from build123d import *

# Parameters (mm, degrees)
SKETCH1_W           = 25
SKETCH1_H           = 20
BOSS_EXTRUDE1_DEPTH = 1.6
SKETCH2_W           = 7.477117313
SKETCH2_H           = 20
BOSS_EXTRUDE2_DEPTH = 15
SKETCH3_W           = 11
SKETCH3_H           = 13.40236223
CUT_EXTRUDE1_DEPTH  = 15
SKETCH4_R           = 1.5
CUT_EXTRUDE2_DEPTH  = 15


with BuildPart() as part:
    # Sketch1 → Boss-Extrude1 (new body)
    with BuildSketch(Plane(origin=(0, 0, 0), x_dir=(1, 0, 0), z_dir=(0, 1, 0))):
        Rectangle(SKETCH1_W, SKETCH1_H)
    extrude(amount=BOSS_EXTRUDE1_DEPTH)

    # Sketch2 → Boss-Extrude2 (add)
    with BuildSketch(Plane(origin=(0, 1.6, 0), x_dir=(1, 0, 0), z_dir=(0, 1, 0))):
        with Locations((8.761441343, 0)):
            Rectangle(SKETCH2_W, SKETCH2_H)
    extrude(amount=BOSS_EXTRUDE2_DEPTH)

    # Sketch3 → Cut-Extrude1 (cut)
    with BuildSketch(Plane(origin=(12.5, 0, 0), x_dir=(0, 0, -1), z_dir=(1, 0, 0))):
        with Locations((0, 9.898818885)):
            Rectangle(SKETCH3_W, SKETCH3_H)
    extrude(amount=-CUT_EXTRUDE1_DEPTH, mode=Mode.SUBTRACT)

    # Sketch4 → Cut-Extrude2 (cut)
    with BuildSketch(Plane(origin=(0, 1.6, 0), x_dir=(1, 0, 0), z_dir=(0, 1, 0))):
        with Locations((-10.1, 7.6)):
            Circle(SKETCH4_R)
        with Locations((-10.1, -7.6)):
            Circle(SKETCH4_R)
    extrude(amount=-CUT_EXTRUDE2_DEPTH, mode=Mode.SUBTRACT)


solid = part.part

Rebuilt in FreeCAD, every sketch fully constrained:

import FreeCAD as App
import Part
import Sketcher

V = App.Vector


def add_polygon(sketch, points):
    """Adds a closed chain of lines whose ends are joined by coincident constraints."""
    first, n = sketch.GeometryCount, len(points)
    for a, b in zip(points, points[1:] + points[:1]):
        sketch.addGeometry(Part.LineSegment(App.Vector(*a, 0), App.Vector(*b, 0)), False)
    for i in range(n):
        sketch.addConstraint(Sketcher.Constraint("Coincident", first + i, 2, first + (i + 1) % n, 1))

doc = App.newDocument("Part")
params = doc.addObject("Spreadsheet::Sheet", "Params")
for row, (alias, value) in enumerate([
    ("sketch1_width", "25 mm"),
    ("sketch1_height", "20 mm"),
    ("pad1_length", "1.6 mm"),
    ("sketch2_height", "20 mm"),
    ("pad2_length", "15 mm"),
    ("sketch3_height", "11 mm"),
    ("pocket1_length", "15 mm"),
    ("sketch4_diameter", "3 mm"),
    ("pocket2_length", "15 mm"),
], start=1):
    params.set(f"A{row}", alias)
    params.set(f"B{row}", "=" + value)
    params.setAlias(f"B{row}", alias)

body = doc.addObject("PartDesign::Body", "Body")

# Sketch on XZ plane
sketch1 = body.newObject("Sketcher::SketchObject", "Sketch")
sketch1.AttachmentSupport = (doc.getObject("XZ_Plane"), [""])
sketch1.MapMode = "FlatFace"
add_polygon(sketch1, [(-12, -10), (-12, 10), (12, 10), (12, -10)])  # lines 0-3
sketch1.addConstraint([
    Sketcher.Constraint("Vertical", 0),
    Sketcher.Constraint("Horizontal", 1),
    Sketcher.Constraint("Vertical", 2),
    Sketcher.Constraint("Horizontal", 3),
    Sketcher.Constraint("Symmetric", 0, 2, 2, 2, -1, 1),
    Sketcher.Constraint("DistanceX", 1, 1, 1, 2, 25.0),
    Sketcher.Constraint("DistanceY", 0, 1, 0, 2, 20.0),
])
sketch1.setExpression("Constraints[9]", "Params.sketch1_width")
sketch1.setExpression("Constraints[10]", "Params.sketch1_height")
pad1 = body.newObject("PartDesign::Pad", "Pad")
pad1.Profile = sketch1
pad1.setExpression("Length", "Params.pad1_length")
pad1.Reversed = True

# Sketch on XZ plane
sketch2 = body.newObject("Sketcher::SketchObject", "Sketch001")
sketch2.AttachmentSupport = (doc.getObject("XZ_Plane"), [""])
sketch2.MapMode = "FlatFace"
sketch2.AttachmentOffset = App.Placement(V(0, 0, -1.6), App.Rotation())
add_polygon(sketch2, [(5, -10), (5, 10), (12, 10), (12, -10)])  # lines 0-3
sketch2.addConstraint([
    Sketcher.Constraint("Vertical", 0),
    Sketcher.Constraint("Horizontal", 1),
    Sketcher.Constraint("Vertical", 2),
    Sketcher.Constraint("Horizontal", 3),
    Sketcher.Constraint("DistanceY", 0, 1, 0, 2, 20.0),
    Sketcher.Constraint("DistanceY", -1, 1, 0, 2, 10.0),
    Sketcher.Constraint("DistanceX", -1, 1, 1, 2, 12.5),
    Sketcher.Constraint("DistanceX", 1, 1, 1, 2, 7.477117),
])
sketch2.setExpression("Constraints[8]", "Params.sketch2_height")
pad2 = body.newObject("PartDesign::Pad", "Pad001")
pad2.Profile = sketch2
pad2.setExpression("Length", "Params.pad2_length")
pad2.Reversed = True

# Sketch on YZ plane
sketch3 = body.newObject("Sketcher::SketchObject", "Sketch002")
sketch3.AttachmentSupport = (doc.getObject("YZ_Plane"), [""])
sketch3.MapMode = "FlatFace"
sketch3.AttachmentOffset = App.Placement(V(0, 0, 12.5), App.Rotation())
add_polygon(sketch3, [(17, 6), (3, 6), (3, -6), (17, -6)])  # lines 0-3
sketch3.addConstraint([
    Sketcher.Constraint("Horizontal", 0),
    Sketcher.Constraint("Vertical", 1),
    Sketcher.Constraint("Horizontal", 2),
    Sketcher.Constraint("Vertical", 3),
    Sketcher.Constraint("DistanceY", 1, 2, 1, 1, 11.0),
    Sketcher.Constraint("DistanceY", -1, 1, 0, 2, 5.5),
    Sketcher.Constraint("DistanceX", -1, 1, 2, 2, 16.6),
    Sketcher.Constraint("DistanceX", 0, 2, 0, 1, 13.402362),
])
sketch3.setExpression("Constraints[8]", "Params.sketch3_height")
pocket1 = body.newObject("PartDesign::Pocket", "Pocket")
pocket1.Profile = sketch3
pocket1.setExpression("Length", "Params.pocket1_length")

# Sketch on XZ plane
sketch4 = body.newObject("Sketcher::SketchObject", "Sketch003")
sketch4.AttachmentSupport = (doc.getObject("XZ_Plane"), [""])
sketch4.MapMode = "FlatFace"
sketch4.AttachmentOffset = App.Placement(V(0, 0, -1.6), App.Rotation())
sketch4.addGeometry([
    Part.Circle(V(-10.1, -7.6, 0), V(0, 0, 1), 1.5),
    Part.Circle(V(-10.1, 7.6, 0), V(0, 0, 1), 1.5),
], False)
sketch4.addConstraint([
    Sketcher.Constraint("Equal", 0, 1),
    Sketcher.Constraint("Symmetric", 0, 3, 1, 3, -1),
    Sketcher.Constraint("Diameter", 0, 3.0),
    Sketcher.Constraint("DistanceX", 0, 3, -1, 1, 10.1),
    Sketcher.Constraint("DistanceY", 0, 3, -1, 1, 7.6),
])
sketch4.setExpression("Constraints[2]", "Params.sketch4_diameter")
pocket2 = body.newObject("PartDesign::Pocket", "Pocket001")
pocket2.Profile = sketch4
pocket2.setExpression("Length", "Params.pocket2_length")
pocket2.Reversed = True

doc.recompute()
